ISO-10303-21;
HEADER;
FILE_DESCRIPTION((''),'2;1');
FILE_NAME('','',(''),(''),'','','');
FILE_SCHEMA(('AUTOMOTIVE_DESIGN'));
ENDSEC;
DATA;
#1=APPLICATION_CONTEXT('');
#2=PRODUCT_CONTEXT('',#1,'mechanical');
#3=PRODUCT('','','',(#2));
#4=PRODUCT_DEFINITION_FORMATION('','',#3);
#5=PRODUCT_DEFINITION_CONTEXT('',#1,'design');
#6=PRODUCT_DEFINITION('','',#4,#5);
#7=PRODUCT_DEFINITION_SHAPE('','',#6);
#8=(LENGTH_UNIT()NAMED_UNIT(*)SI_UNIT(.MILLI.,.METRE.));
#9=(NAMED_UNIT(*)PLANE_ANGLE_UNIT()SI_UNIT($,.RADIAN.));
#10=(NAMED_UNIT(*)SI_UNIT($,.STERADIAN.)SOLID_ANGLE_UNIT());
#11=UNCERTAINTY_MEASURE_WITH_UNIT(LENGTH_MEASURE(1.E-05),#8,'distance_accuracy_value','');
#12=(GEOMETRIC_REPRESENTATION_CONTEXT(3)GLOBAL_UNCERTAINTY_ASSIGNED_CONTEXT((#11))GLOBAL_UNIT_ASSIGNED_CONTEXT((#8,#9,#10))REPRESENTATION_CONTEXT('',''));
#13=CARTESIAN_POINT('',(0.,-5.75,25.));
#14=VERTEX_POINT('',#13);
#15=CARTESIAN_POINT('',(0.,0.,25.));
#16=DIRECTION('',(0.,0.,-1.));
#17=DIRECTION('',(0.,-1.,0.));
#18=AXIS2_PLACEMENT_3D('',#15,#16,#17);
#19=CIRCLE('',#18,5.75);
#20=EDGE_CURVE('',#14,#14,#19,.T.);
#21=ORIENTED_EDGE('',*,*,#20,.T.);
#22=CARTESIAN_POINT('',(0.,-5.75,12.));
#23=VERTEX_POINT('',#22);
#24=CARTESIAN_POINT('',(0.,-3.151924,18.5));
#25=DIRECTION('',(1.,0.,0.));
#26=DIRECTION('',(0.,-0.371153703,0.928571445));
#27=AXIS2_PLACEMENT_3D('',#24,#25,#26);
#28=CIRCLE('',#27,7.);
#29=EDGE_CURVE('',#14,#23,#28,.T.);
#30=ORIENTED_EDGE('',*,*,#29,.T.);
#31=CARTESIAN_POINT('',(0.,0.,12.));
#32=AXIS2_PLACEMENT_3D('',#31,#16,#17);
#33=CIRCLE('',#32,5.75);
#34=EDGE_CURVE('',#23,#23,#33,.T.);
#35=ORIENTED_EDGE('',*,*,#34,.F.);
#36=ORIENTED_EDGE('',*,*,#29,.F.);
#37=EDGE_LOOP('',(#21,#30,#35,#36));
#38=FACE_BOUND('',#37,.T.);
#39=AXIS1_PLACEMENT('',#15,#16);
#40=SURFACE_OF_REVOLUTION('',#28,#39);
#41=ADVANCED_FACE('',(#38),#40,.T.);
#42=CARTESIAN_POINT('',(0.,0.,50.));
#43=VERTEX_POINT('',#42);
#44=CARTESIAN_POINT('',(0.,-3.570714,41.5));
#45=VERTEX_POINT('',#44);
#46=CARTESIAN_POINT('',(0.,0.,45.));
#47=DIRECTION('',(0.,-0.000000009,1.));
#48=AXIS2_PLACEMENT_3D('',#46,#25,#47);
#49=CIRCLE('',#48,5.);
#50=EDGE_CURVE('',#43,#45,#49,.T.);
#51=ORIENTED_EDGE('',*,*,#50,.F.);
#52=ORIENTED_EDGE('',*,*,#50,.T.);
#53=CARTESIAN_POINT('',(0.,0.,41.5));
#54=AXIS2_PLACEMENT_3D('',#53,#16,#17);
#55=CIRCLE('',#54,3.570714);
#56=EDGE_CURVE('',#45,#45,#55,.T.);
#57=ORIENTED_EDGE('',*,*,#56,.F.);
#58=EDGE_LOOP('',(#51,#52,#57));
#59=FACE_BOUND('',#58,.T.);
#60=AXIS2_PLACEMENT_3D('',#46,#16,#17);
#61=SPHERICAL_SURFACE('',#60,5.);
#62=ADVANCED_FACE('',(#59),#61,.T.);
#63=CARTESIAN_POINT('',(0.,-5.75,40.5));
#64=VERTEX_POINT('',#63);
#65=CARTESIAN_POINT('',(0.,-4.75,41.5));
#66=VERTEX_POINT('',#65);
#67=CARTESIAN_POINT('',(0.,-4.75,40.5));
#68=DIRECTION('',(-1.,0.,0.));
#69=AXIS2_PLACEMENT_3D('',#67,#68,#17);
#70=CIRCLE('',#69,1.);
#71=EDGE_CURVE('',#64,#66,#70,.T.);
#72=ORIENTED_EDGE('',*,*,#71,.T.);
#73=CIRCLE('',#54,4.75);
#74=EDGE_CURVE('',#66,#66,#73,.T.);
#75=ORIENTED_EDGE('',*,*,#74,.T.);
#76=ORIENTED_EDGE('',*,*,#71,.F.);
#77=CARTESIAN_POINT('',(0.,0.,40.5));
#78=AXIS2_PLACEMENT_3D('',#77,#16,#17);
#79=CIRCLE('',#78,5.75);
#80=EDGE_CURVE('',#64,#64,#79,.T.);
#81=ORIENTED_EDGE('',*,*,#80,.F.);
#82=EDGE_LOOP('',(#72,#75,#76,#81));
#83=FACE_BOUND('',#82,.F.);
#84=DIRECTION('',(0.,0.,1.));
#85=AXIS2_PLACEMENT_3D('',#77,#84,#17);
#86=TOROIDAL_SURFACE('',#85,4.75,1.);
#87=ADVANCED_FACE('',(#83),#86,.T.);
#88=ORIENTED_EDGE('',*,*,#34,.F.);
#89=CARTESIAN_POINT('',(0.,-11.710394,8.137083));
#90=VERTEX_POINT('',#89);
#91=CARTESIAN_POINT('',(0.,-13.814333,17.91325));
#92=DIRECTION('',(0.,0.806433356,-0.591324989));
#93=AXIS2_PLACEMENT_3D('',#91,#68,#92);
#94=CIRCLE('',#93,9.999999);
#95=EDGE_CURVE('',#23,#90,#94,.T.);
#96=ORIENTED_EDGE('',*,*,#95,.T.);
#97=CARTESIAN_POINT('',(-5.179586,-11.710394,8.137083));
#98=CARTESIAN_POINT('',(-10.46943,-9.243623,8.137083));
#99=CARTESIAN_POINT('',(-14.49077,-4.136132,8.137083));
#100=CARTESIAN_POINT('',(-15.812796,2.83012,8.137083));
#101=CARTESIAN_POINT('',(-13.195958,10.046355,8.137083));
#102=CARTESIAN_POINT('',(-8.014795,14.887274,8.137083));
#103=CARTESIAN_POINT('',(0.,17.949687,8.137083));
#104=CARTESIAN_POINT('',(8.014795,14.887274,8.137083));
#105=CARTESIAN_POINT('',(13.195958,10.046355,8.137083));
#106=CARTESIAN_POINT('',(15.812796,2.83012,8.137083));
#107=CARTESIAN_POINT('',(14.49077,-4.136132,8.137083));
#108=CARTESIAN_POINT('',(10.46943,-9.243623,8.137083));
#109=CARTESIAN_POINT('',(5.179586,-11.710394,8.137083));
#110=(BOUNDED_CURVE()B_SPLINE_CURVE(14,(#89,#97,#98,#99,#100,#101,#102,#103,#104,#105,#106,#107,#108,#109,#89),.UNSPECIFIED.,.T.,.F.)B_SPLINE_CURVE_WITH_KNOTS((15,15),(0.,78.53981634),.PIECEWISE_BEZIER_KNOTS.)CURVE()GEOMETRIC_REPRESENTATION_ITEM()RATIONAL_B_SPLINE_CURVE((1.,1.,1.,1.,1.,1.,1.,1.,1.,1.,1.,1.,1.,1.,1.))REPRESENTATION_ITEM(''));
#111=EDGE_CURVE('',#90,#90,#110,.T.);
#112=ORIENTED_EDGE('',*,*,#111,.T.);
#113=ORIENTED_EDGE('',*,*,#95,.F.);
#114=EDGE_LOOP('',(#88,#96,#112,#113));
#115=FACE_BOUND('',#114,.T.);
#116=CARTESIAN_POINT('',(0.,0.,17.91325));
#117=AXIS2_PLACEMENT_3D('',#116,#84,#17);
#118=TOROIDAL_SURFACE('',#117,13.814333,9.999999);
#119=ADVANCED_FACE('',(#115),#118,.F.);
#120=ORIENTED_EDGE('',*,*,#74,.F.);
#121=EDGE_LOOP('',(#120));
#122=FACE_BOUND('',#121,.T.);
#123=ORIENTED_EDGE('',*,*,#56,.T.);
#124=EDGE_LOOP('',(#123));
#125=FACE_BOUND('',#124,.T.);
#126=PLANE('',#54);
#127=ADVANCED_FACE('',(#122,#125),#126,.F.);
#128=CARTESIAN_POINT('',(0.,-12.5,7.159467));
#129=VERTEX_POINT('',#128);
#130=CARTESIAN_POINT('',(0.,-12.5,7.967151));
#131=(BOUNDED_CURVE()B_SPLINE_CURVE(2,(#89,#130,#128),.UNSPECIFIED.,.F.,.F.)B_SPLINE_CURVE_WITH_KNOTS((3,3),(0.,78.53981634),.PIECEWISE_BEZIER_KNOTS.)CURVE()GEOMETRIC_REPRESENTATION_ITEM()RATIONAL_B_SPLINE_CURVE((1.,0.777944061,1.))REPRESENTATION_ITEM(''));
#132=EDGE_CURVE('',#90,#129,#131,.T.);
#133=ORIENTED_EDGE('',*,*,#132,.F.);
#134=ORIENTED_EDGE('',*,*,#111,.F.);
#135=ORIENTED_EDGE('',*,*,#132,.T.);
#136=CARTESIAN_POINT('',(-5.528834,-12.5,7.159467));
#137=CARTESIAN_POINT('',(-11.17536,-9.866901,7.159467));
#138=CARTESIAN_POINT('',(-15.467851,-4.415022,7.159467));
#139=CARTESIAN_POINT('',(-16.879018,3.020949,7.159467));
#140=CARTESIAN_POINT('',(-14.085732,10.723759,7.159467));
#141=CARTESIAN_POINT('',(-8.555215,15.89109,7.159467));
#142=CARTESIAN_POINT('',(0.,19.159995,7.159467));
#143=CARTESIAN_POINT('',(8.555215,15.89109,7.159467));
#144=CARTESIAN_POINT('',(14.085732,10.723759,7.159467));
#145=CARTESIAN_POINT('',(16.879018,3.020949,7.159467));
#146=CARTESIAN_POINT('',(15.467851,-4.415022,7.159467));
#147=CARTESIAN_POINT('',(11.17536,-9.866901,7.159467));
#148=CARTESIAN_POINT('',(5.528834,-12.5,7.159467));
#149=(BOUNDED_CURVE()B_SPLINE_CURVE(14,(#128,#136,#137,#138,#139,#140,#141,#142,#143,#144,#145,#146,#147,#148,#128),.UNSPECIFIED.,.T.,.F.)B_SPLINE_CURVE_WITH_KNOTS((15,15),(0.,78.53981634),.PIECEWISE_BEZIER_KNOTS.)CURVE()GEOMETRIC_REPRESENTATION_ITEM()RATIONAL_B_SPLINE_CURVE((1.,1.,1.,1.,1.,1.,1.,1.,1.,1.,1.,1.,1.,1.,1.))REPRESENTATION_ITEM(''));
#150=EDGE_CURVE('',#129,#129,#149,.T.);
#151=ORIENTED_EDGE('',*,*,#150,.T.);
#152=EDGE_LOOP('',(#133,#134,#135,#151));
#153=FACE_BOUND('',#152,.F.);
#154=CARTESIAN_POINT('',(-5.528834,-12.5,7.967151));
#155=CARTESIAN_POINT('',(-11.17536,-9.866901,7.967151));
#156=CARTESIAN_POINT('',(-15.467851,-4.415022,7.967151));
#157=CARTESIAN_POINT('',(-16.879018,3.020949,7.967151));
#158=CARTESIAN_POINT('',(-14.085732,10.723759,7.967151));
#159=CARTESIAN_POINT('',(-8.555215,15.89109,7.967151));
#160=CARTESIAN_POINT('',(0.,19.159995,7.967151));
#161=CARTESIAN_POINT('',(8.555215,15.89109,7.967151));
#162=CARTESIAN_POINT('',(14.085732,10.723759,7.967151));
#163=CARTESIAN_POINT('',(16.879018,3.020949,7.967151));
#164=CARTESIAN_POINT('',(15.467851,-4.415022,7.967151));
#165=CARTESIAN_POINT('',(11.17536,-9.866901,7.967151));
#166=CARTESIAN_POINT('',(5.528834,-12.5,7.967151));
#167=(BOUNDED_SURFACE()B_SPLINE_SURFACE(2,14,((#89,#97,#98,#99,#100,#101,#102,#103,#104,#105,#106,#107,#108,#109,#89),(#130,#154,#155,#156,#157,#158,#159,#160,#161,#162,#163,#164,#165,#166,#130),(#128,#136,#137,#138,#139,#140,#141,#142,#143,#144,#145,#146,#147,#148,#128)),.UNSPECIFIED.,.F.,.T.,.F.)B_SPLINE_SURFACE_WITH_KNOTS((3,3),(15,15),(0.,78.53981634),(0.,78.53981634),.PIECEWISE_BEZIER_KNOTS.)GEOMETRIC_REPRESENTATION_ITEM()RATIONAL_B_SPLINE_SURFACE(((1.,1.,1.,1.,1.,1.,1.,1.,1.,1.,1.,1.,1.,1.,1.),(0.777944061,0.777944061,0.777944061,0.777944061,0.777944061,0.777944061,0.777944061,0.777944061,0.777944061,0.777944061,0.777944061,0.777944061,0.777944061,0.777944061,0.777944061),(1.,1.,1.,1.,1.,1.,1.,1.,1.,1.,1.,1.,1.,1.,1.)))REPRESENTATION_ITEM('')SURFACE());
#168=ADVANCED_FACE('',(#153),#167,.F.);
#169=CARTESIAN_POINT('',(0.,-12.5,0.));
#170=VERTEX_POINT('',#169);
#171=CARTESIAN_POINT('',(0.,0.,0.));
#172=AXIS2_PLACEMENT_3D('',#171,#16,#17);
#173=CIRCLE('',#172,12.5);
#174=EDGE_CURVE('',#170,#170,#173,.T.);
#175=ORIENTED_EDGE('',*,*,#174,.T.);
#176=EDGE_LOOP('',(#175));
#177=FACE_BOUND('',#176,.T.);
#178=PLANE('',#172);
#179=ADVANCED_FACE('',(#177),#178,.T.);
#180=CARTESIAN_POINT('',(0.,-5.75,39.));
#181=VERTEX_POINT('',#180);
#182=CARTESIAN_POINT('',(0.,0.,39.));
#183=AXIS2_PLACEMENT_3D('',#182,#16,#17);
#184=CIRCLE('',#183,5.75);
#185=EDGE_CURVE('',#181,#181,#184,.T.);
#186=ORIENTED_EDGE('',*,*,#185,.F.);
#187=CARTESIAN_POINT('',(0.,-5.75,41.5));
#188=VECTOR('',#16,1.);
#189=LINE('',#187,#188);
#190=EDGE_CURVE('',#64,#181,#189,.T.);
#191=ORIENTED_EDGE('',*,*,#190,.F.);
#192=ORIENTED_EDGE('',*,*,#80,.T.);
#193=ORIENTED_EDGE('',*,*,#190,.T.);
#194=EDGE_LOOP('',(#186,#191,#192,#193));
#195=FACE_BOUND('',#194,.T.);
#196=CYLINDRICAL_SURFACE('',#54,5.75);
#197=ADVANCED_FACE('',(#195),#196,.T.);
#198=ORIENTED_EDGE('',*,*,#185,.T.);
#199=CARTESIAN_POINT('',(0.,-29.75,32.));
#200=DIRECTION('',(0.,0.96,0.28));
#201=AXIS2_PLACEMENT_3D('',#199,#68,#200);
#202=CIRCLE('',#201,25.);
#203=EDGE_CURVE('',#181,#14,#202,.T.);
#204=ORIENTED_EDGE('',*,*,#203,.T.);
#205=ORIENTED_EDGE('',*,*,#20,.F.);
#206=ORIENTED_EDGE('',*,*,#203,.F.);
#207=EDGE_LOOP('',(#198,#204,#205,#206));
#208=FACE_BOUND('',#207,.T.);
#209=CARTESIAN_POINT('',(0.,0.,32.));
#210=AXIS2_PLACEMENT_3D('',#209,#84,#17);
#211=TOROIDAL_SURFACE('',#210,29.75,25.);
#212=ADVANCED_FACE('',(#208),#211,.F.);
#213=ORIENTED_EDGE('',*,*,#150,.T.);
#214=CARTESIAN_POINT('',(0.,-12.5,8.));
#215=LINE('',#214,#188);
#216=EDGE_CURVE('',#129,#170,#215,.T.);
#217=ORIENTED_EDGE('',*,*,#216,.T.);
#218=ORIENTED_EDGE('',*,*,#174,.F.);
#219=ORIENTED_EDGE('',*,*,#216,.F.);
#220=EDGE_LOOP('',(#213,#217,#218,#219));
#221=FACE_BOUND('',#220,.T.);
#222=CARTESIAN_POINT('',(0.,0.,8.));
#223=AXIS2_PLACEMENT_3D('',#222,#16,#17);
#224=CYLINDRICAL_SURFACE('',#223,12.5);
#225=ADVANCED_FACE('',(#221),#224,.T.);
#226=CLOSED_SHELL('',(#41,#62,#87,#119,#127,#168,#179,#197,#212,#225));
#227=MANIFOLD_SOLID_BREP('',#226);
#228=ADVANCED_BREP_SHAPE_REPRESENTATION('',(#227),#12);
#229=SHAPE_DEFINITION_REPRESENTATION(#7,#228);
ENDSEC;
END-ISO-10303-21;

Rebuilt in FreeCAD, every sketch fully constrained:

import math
import FreeCAD as App
import Part
import Sketcher

V = App.Vector
Q = App.Units.Quantity


def edges_at(feature, points):
    """Names of the edges that pass closest to the given points."""
    edges = feature.Shape.Edges
    near = lambda p: min(range(len(edges)), key=lambda i: edges[i].distToShape(Part.Vertex(*p))[0])
    return sorted({f"Edge{near(p) + 1}" for p in points})

doc = App.newDocument("Part")
body = doc.addObject("PartDesign::Body", "Body")

sketch1 = doc.addObject("Sketcher::SketchObject", "Sketch")
body.addObject(sketch1)
sketch1.AttachmentSupport = (doc.YZ_Plane, [""])
sketch1.MapMode = "FlatFace"
sketch1.addGeometry([
    Part.LineSegment(V(-12.5, 0, 0), V(0, 0, 0)),
    Part.LineSegment(V(0, 0, 0), V(0, 50, 0)),
    Part.ArcOfCircle(Part.Circle(V(0, 45, 0), V(0, 0, 1), 5), math.radians(90), math.radians(224)),
    Part.LineSegment(V(-3.6, 41.5, 0), V(-5.8, 41.5, 0)),
    Part.LineSegment(V(-5.8, 41.5, 0), V(-5.8, 39, 0)),
    Part.ArcOfCircle(Part.Circle(V(-29.8, 32, 0), V(0, 0, 1), 25), math.radians(-16), math.radians(16)),
    Part.ArcOfCircle(Part.Circle(V(-3.2, 18.5, 0), V(0, 0, 1), 7), math.radians(112), math.radians(248)),
    Part.ArcOfCircle(Part.Circle(V(-13.8, 17.9, 0), V(0, 0, 1), 10), math.radians(-82), math.radians(-36)),
    Part.LineSegment(V(-12.5, 8, 0), V(-12.5, 0, 0)),
], False)
sketch1.addConstraint([
    Sketcher.Constraint("Coincident", 0, 2, 1, 1),
    Sketcher.Constraint("Coincident", 1, 2, 2, 1),
    Sketcher.Constraint("Coincident", 2, 2, 3, 1),
    Sketcher.Constraint("Coincident", 3, 2, 4, 1),
    Sketcher.Constraint("Coincident", 4, 2, 5, 2),
    Sketcher.Constraint("Coincident", 5, 1, 6, 1),
    Sketcher.Constraint("Coincident", 6, 2, 7, 2),
    Sketcher.Constraint("Coincident", 7, 1, 8, 1),
    Sketcher.Constraint("Coincident", 8, 2, 0, 1),
    Sketcher.Constraint("Horizontal", 0),
    Sketcher.Constraint("Vertical", 1),
    Sketcher.Constraint("Horizontal", 3),
    Sketcher.Constraint("Vertical", 4),
    Sketcher.Constraint("Vertical", 8),
    Sketcher.Constraint("Coincident", 0, 2, -1, 1),
    Sketcher.Constraint("PointOnObject", 2, 3, -2),
    Sketcher.Constraint("Vertical", 4, 2, 5, 1),
    Sketcher.Constraint("Vertical", 5, 1, 6, 2),
    Sketcher.Constraint("Radius", 2, Q("5 mm")),
    Sketcher.Constraint("Radius", 5, Q("25 mm")),
    Sketcher.Constraint("Radius", 6, Q("7 mm")),
    Sketcher.Constraint("Radius", 7, Q("9.999999 mm")),
    Sketcher.Constraint("DistanceY", 1, 1, 1, 2, Q("50 mm")),
    Sketcher.Constraint("DistanceY", 8, 2, 8, 1, Q("8 mm")),
    Sketcher.Constraint("DistanceX", 0, 1, 0, 2, Q("12.5 mm")),
    Sketcher.Constraint("DistanceY", 4, 2, 4, 1, Q("2.5 mm")),
    Sketcher.Constraint("DistanceY", -1, 1, 5, 3, Q("32 mm")),
    Sketcher.Constraint("DistanceY", -1, 1, 4, 2, Q("39 mm")),
    Sketcher.Constraint("DistanceY", -1, 1, 6, 2, Q("12 mm")),
    Sketcher.Constraint("DistanceX", 5, 3, -1, 1, Q("29.75 mm")),
])
revolution = doc.addObject("PartDesign::Revolution", "Revolution")
body.addObject(revolution)
revolution.Profile = sketch1
revolution.ReferenceAxis = (sketch1, ["V_Axis"])
revolution.Angle = 360
doc.recompute()

fillet = doc.addObject("PartDesign::Fillet", "Fillet")
body.addObject(fillet)
fillet.Base = (revolution, edges_at(revolution, [(0, 12.5, 8)]))
fillet.Radius = 1
doc.recompute()

fillet2 = doc.addObject("PartDesign::Fillet", "Fillet001")
body.addObject(fillet2)
fillet2.Base = (fillet, edges_at(fillet, [(0, 5.75, 41.5)]))
fillet2.Radius = 1

doc.recompute()
